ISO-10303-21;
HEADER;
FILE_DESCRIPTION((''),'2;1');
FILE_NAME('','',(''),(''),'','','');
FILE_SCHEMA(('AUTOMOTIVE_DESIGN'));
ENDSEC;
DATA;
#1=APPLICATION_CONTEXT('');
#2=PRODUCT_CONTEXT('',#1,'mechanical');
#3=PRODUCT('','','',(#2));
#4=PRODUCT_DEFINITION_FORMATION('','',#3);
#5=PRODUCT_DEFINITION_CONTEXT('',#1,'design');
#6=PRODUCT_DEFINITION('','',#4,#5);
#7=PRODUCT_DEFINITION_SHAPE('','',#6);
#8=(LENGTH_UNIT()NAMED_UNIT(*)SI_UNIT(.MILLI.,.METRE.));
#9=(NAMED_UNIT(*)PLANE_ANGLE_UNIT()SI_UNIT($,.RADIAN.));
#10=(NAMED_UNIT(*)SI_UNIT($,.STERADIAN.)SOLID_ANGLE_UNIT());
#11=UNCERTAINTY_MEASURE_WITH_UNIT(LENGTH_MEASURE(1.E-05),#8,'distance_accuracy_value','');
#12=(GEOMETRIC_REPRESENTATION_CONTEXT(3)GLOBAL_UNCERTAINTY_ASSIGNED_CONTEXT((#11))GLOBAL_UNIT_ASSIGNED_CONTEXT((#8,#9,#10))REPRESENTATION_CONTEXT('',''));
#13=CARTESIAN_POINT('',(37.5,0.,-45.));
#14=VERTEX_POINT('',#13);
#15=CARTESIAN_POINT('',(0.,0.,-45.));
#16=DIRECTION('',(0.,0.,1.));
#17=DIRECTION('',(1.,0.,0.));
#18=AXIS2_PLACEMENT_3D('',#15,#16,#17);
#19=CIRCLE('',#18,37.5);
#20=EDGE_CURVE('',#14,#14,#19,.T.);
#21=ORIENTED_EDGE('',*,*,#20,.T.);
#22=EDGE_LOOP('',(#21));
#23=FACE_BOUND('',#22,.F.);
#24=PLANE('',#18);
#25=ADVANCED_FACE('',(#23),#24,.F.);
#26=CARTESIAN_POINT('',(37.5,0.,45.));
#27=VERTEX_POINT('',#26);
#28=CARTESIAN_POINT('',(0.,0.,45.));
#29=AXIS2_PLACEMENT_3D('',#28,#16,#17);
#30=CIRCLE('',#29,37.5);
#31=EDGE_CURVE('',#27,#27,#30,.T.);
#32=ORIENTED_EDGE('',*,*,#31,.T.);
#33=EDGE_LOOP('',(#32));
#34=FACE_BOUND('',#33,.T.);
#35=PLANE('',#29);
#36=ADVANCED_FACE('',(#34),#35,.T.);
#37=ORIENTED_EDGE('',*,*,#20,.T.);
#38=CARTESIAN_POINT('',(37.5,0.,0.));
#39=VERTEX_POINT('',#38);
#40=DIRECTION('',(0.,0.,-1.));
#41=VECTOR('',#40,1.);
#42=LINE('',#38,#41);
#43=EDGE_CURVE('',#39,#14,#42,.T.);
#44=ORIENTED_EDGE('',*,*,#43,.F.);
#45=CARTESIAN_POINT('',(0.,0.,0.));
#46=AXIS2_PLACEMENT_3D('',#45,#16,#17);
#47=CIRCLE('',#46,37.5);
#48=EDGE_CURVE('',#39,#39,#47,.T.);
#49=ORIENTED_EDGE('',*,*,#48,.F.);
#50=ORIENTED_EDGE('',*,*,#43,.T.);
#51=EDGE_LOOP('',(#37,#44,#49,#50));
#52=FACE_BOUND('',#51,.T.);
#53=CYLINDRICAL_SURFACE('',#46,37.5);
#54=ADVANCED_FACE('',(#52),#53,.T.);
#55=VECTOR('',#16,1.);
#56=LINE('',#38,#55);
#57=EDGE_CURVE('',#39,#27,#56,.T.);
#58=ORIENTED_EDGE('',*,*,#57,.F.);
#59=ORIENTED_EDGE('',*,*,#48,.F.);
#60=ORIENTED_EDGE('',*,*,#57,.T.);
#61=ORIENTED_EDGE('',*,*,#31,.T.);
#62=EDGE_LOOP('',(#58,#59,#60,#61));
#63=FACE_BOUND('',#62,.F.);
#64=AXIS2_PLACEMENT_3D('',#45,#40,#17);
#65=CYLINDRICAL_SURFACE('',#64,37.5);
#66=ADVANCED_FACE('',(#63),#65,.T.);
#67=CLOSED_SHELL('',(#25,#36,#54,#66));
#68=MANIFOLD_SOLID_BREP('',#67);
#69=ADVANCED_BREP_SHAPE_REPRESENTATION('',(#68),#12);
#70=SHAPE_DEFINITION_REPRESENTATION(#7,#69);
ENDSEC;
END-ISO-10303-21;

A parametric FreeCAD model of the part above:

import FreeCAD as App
import Part
import Sketcher
Q = App.Units.Quantity

doc = App.newDocument("Part")
params = doc.addObject("Spreadsheet::Sheet", "Params")
for row, (alias, value) in enumerate([
    ("sketch1_diameter", "75 mm"),
    ("pad1_length", "90 mm"),
], start=1):
    params.set(f"A{row}", alias)
    params.set(f"B{row}", "=" + value)
    params.setAlias(f"B{row}", alias)

body = doc.addObject("PartDesign::Body", "Body")

# Sketch on XY plane
sketch1 = body.newObject("Sketcher::SketchObject", "Sketch")
sketch1.AttachmentSupport = (doc.getObject("XY_Plane"), [""])
sketch1.MapMode = "FlatFace"
sketch1.addGeometry(Part.Circle(App.Vector(0, 0, 0), App.Vector(0, 0, 1), 38), False)
sketch1.addConstraint(Sketcher.Constraint("Coincident", 0, 3, -1, 1))
sketch1.addConstraint(Sketcher.Constraint("Diameter", 0, Q("75 mm")))
sketch1.setExpression("Constraints[1]", "Params.sketch1_diameter")
pad1 = body.newObject("PartDesign::Pad", "Pad")
pad1.Profile = sketch1
pad1.setExpression("Length", "Params.pad1_length")
pad1.Midplane = True

doc.recompute()
